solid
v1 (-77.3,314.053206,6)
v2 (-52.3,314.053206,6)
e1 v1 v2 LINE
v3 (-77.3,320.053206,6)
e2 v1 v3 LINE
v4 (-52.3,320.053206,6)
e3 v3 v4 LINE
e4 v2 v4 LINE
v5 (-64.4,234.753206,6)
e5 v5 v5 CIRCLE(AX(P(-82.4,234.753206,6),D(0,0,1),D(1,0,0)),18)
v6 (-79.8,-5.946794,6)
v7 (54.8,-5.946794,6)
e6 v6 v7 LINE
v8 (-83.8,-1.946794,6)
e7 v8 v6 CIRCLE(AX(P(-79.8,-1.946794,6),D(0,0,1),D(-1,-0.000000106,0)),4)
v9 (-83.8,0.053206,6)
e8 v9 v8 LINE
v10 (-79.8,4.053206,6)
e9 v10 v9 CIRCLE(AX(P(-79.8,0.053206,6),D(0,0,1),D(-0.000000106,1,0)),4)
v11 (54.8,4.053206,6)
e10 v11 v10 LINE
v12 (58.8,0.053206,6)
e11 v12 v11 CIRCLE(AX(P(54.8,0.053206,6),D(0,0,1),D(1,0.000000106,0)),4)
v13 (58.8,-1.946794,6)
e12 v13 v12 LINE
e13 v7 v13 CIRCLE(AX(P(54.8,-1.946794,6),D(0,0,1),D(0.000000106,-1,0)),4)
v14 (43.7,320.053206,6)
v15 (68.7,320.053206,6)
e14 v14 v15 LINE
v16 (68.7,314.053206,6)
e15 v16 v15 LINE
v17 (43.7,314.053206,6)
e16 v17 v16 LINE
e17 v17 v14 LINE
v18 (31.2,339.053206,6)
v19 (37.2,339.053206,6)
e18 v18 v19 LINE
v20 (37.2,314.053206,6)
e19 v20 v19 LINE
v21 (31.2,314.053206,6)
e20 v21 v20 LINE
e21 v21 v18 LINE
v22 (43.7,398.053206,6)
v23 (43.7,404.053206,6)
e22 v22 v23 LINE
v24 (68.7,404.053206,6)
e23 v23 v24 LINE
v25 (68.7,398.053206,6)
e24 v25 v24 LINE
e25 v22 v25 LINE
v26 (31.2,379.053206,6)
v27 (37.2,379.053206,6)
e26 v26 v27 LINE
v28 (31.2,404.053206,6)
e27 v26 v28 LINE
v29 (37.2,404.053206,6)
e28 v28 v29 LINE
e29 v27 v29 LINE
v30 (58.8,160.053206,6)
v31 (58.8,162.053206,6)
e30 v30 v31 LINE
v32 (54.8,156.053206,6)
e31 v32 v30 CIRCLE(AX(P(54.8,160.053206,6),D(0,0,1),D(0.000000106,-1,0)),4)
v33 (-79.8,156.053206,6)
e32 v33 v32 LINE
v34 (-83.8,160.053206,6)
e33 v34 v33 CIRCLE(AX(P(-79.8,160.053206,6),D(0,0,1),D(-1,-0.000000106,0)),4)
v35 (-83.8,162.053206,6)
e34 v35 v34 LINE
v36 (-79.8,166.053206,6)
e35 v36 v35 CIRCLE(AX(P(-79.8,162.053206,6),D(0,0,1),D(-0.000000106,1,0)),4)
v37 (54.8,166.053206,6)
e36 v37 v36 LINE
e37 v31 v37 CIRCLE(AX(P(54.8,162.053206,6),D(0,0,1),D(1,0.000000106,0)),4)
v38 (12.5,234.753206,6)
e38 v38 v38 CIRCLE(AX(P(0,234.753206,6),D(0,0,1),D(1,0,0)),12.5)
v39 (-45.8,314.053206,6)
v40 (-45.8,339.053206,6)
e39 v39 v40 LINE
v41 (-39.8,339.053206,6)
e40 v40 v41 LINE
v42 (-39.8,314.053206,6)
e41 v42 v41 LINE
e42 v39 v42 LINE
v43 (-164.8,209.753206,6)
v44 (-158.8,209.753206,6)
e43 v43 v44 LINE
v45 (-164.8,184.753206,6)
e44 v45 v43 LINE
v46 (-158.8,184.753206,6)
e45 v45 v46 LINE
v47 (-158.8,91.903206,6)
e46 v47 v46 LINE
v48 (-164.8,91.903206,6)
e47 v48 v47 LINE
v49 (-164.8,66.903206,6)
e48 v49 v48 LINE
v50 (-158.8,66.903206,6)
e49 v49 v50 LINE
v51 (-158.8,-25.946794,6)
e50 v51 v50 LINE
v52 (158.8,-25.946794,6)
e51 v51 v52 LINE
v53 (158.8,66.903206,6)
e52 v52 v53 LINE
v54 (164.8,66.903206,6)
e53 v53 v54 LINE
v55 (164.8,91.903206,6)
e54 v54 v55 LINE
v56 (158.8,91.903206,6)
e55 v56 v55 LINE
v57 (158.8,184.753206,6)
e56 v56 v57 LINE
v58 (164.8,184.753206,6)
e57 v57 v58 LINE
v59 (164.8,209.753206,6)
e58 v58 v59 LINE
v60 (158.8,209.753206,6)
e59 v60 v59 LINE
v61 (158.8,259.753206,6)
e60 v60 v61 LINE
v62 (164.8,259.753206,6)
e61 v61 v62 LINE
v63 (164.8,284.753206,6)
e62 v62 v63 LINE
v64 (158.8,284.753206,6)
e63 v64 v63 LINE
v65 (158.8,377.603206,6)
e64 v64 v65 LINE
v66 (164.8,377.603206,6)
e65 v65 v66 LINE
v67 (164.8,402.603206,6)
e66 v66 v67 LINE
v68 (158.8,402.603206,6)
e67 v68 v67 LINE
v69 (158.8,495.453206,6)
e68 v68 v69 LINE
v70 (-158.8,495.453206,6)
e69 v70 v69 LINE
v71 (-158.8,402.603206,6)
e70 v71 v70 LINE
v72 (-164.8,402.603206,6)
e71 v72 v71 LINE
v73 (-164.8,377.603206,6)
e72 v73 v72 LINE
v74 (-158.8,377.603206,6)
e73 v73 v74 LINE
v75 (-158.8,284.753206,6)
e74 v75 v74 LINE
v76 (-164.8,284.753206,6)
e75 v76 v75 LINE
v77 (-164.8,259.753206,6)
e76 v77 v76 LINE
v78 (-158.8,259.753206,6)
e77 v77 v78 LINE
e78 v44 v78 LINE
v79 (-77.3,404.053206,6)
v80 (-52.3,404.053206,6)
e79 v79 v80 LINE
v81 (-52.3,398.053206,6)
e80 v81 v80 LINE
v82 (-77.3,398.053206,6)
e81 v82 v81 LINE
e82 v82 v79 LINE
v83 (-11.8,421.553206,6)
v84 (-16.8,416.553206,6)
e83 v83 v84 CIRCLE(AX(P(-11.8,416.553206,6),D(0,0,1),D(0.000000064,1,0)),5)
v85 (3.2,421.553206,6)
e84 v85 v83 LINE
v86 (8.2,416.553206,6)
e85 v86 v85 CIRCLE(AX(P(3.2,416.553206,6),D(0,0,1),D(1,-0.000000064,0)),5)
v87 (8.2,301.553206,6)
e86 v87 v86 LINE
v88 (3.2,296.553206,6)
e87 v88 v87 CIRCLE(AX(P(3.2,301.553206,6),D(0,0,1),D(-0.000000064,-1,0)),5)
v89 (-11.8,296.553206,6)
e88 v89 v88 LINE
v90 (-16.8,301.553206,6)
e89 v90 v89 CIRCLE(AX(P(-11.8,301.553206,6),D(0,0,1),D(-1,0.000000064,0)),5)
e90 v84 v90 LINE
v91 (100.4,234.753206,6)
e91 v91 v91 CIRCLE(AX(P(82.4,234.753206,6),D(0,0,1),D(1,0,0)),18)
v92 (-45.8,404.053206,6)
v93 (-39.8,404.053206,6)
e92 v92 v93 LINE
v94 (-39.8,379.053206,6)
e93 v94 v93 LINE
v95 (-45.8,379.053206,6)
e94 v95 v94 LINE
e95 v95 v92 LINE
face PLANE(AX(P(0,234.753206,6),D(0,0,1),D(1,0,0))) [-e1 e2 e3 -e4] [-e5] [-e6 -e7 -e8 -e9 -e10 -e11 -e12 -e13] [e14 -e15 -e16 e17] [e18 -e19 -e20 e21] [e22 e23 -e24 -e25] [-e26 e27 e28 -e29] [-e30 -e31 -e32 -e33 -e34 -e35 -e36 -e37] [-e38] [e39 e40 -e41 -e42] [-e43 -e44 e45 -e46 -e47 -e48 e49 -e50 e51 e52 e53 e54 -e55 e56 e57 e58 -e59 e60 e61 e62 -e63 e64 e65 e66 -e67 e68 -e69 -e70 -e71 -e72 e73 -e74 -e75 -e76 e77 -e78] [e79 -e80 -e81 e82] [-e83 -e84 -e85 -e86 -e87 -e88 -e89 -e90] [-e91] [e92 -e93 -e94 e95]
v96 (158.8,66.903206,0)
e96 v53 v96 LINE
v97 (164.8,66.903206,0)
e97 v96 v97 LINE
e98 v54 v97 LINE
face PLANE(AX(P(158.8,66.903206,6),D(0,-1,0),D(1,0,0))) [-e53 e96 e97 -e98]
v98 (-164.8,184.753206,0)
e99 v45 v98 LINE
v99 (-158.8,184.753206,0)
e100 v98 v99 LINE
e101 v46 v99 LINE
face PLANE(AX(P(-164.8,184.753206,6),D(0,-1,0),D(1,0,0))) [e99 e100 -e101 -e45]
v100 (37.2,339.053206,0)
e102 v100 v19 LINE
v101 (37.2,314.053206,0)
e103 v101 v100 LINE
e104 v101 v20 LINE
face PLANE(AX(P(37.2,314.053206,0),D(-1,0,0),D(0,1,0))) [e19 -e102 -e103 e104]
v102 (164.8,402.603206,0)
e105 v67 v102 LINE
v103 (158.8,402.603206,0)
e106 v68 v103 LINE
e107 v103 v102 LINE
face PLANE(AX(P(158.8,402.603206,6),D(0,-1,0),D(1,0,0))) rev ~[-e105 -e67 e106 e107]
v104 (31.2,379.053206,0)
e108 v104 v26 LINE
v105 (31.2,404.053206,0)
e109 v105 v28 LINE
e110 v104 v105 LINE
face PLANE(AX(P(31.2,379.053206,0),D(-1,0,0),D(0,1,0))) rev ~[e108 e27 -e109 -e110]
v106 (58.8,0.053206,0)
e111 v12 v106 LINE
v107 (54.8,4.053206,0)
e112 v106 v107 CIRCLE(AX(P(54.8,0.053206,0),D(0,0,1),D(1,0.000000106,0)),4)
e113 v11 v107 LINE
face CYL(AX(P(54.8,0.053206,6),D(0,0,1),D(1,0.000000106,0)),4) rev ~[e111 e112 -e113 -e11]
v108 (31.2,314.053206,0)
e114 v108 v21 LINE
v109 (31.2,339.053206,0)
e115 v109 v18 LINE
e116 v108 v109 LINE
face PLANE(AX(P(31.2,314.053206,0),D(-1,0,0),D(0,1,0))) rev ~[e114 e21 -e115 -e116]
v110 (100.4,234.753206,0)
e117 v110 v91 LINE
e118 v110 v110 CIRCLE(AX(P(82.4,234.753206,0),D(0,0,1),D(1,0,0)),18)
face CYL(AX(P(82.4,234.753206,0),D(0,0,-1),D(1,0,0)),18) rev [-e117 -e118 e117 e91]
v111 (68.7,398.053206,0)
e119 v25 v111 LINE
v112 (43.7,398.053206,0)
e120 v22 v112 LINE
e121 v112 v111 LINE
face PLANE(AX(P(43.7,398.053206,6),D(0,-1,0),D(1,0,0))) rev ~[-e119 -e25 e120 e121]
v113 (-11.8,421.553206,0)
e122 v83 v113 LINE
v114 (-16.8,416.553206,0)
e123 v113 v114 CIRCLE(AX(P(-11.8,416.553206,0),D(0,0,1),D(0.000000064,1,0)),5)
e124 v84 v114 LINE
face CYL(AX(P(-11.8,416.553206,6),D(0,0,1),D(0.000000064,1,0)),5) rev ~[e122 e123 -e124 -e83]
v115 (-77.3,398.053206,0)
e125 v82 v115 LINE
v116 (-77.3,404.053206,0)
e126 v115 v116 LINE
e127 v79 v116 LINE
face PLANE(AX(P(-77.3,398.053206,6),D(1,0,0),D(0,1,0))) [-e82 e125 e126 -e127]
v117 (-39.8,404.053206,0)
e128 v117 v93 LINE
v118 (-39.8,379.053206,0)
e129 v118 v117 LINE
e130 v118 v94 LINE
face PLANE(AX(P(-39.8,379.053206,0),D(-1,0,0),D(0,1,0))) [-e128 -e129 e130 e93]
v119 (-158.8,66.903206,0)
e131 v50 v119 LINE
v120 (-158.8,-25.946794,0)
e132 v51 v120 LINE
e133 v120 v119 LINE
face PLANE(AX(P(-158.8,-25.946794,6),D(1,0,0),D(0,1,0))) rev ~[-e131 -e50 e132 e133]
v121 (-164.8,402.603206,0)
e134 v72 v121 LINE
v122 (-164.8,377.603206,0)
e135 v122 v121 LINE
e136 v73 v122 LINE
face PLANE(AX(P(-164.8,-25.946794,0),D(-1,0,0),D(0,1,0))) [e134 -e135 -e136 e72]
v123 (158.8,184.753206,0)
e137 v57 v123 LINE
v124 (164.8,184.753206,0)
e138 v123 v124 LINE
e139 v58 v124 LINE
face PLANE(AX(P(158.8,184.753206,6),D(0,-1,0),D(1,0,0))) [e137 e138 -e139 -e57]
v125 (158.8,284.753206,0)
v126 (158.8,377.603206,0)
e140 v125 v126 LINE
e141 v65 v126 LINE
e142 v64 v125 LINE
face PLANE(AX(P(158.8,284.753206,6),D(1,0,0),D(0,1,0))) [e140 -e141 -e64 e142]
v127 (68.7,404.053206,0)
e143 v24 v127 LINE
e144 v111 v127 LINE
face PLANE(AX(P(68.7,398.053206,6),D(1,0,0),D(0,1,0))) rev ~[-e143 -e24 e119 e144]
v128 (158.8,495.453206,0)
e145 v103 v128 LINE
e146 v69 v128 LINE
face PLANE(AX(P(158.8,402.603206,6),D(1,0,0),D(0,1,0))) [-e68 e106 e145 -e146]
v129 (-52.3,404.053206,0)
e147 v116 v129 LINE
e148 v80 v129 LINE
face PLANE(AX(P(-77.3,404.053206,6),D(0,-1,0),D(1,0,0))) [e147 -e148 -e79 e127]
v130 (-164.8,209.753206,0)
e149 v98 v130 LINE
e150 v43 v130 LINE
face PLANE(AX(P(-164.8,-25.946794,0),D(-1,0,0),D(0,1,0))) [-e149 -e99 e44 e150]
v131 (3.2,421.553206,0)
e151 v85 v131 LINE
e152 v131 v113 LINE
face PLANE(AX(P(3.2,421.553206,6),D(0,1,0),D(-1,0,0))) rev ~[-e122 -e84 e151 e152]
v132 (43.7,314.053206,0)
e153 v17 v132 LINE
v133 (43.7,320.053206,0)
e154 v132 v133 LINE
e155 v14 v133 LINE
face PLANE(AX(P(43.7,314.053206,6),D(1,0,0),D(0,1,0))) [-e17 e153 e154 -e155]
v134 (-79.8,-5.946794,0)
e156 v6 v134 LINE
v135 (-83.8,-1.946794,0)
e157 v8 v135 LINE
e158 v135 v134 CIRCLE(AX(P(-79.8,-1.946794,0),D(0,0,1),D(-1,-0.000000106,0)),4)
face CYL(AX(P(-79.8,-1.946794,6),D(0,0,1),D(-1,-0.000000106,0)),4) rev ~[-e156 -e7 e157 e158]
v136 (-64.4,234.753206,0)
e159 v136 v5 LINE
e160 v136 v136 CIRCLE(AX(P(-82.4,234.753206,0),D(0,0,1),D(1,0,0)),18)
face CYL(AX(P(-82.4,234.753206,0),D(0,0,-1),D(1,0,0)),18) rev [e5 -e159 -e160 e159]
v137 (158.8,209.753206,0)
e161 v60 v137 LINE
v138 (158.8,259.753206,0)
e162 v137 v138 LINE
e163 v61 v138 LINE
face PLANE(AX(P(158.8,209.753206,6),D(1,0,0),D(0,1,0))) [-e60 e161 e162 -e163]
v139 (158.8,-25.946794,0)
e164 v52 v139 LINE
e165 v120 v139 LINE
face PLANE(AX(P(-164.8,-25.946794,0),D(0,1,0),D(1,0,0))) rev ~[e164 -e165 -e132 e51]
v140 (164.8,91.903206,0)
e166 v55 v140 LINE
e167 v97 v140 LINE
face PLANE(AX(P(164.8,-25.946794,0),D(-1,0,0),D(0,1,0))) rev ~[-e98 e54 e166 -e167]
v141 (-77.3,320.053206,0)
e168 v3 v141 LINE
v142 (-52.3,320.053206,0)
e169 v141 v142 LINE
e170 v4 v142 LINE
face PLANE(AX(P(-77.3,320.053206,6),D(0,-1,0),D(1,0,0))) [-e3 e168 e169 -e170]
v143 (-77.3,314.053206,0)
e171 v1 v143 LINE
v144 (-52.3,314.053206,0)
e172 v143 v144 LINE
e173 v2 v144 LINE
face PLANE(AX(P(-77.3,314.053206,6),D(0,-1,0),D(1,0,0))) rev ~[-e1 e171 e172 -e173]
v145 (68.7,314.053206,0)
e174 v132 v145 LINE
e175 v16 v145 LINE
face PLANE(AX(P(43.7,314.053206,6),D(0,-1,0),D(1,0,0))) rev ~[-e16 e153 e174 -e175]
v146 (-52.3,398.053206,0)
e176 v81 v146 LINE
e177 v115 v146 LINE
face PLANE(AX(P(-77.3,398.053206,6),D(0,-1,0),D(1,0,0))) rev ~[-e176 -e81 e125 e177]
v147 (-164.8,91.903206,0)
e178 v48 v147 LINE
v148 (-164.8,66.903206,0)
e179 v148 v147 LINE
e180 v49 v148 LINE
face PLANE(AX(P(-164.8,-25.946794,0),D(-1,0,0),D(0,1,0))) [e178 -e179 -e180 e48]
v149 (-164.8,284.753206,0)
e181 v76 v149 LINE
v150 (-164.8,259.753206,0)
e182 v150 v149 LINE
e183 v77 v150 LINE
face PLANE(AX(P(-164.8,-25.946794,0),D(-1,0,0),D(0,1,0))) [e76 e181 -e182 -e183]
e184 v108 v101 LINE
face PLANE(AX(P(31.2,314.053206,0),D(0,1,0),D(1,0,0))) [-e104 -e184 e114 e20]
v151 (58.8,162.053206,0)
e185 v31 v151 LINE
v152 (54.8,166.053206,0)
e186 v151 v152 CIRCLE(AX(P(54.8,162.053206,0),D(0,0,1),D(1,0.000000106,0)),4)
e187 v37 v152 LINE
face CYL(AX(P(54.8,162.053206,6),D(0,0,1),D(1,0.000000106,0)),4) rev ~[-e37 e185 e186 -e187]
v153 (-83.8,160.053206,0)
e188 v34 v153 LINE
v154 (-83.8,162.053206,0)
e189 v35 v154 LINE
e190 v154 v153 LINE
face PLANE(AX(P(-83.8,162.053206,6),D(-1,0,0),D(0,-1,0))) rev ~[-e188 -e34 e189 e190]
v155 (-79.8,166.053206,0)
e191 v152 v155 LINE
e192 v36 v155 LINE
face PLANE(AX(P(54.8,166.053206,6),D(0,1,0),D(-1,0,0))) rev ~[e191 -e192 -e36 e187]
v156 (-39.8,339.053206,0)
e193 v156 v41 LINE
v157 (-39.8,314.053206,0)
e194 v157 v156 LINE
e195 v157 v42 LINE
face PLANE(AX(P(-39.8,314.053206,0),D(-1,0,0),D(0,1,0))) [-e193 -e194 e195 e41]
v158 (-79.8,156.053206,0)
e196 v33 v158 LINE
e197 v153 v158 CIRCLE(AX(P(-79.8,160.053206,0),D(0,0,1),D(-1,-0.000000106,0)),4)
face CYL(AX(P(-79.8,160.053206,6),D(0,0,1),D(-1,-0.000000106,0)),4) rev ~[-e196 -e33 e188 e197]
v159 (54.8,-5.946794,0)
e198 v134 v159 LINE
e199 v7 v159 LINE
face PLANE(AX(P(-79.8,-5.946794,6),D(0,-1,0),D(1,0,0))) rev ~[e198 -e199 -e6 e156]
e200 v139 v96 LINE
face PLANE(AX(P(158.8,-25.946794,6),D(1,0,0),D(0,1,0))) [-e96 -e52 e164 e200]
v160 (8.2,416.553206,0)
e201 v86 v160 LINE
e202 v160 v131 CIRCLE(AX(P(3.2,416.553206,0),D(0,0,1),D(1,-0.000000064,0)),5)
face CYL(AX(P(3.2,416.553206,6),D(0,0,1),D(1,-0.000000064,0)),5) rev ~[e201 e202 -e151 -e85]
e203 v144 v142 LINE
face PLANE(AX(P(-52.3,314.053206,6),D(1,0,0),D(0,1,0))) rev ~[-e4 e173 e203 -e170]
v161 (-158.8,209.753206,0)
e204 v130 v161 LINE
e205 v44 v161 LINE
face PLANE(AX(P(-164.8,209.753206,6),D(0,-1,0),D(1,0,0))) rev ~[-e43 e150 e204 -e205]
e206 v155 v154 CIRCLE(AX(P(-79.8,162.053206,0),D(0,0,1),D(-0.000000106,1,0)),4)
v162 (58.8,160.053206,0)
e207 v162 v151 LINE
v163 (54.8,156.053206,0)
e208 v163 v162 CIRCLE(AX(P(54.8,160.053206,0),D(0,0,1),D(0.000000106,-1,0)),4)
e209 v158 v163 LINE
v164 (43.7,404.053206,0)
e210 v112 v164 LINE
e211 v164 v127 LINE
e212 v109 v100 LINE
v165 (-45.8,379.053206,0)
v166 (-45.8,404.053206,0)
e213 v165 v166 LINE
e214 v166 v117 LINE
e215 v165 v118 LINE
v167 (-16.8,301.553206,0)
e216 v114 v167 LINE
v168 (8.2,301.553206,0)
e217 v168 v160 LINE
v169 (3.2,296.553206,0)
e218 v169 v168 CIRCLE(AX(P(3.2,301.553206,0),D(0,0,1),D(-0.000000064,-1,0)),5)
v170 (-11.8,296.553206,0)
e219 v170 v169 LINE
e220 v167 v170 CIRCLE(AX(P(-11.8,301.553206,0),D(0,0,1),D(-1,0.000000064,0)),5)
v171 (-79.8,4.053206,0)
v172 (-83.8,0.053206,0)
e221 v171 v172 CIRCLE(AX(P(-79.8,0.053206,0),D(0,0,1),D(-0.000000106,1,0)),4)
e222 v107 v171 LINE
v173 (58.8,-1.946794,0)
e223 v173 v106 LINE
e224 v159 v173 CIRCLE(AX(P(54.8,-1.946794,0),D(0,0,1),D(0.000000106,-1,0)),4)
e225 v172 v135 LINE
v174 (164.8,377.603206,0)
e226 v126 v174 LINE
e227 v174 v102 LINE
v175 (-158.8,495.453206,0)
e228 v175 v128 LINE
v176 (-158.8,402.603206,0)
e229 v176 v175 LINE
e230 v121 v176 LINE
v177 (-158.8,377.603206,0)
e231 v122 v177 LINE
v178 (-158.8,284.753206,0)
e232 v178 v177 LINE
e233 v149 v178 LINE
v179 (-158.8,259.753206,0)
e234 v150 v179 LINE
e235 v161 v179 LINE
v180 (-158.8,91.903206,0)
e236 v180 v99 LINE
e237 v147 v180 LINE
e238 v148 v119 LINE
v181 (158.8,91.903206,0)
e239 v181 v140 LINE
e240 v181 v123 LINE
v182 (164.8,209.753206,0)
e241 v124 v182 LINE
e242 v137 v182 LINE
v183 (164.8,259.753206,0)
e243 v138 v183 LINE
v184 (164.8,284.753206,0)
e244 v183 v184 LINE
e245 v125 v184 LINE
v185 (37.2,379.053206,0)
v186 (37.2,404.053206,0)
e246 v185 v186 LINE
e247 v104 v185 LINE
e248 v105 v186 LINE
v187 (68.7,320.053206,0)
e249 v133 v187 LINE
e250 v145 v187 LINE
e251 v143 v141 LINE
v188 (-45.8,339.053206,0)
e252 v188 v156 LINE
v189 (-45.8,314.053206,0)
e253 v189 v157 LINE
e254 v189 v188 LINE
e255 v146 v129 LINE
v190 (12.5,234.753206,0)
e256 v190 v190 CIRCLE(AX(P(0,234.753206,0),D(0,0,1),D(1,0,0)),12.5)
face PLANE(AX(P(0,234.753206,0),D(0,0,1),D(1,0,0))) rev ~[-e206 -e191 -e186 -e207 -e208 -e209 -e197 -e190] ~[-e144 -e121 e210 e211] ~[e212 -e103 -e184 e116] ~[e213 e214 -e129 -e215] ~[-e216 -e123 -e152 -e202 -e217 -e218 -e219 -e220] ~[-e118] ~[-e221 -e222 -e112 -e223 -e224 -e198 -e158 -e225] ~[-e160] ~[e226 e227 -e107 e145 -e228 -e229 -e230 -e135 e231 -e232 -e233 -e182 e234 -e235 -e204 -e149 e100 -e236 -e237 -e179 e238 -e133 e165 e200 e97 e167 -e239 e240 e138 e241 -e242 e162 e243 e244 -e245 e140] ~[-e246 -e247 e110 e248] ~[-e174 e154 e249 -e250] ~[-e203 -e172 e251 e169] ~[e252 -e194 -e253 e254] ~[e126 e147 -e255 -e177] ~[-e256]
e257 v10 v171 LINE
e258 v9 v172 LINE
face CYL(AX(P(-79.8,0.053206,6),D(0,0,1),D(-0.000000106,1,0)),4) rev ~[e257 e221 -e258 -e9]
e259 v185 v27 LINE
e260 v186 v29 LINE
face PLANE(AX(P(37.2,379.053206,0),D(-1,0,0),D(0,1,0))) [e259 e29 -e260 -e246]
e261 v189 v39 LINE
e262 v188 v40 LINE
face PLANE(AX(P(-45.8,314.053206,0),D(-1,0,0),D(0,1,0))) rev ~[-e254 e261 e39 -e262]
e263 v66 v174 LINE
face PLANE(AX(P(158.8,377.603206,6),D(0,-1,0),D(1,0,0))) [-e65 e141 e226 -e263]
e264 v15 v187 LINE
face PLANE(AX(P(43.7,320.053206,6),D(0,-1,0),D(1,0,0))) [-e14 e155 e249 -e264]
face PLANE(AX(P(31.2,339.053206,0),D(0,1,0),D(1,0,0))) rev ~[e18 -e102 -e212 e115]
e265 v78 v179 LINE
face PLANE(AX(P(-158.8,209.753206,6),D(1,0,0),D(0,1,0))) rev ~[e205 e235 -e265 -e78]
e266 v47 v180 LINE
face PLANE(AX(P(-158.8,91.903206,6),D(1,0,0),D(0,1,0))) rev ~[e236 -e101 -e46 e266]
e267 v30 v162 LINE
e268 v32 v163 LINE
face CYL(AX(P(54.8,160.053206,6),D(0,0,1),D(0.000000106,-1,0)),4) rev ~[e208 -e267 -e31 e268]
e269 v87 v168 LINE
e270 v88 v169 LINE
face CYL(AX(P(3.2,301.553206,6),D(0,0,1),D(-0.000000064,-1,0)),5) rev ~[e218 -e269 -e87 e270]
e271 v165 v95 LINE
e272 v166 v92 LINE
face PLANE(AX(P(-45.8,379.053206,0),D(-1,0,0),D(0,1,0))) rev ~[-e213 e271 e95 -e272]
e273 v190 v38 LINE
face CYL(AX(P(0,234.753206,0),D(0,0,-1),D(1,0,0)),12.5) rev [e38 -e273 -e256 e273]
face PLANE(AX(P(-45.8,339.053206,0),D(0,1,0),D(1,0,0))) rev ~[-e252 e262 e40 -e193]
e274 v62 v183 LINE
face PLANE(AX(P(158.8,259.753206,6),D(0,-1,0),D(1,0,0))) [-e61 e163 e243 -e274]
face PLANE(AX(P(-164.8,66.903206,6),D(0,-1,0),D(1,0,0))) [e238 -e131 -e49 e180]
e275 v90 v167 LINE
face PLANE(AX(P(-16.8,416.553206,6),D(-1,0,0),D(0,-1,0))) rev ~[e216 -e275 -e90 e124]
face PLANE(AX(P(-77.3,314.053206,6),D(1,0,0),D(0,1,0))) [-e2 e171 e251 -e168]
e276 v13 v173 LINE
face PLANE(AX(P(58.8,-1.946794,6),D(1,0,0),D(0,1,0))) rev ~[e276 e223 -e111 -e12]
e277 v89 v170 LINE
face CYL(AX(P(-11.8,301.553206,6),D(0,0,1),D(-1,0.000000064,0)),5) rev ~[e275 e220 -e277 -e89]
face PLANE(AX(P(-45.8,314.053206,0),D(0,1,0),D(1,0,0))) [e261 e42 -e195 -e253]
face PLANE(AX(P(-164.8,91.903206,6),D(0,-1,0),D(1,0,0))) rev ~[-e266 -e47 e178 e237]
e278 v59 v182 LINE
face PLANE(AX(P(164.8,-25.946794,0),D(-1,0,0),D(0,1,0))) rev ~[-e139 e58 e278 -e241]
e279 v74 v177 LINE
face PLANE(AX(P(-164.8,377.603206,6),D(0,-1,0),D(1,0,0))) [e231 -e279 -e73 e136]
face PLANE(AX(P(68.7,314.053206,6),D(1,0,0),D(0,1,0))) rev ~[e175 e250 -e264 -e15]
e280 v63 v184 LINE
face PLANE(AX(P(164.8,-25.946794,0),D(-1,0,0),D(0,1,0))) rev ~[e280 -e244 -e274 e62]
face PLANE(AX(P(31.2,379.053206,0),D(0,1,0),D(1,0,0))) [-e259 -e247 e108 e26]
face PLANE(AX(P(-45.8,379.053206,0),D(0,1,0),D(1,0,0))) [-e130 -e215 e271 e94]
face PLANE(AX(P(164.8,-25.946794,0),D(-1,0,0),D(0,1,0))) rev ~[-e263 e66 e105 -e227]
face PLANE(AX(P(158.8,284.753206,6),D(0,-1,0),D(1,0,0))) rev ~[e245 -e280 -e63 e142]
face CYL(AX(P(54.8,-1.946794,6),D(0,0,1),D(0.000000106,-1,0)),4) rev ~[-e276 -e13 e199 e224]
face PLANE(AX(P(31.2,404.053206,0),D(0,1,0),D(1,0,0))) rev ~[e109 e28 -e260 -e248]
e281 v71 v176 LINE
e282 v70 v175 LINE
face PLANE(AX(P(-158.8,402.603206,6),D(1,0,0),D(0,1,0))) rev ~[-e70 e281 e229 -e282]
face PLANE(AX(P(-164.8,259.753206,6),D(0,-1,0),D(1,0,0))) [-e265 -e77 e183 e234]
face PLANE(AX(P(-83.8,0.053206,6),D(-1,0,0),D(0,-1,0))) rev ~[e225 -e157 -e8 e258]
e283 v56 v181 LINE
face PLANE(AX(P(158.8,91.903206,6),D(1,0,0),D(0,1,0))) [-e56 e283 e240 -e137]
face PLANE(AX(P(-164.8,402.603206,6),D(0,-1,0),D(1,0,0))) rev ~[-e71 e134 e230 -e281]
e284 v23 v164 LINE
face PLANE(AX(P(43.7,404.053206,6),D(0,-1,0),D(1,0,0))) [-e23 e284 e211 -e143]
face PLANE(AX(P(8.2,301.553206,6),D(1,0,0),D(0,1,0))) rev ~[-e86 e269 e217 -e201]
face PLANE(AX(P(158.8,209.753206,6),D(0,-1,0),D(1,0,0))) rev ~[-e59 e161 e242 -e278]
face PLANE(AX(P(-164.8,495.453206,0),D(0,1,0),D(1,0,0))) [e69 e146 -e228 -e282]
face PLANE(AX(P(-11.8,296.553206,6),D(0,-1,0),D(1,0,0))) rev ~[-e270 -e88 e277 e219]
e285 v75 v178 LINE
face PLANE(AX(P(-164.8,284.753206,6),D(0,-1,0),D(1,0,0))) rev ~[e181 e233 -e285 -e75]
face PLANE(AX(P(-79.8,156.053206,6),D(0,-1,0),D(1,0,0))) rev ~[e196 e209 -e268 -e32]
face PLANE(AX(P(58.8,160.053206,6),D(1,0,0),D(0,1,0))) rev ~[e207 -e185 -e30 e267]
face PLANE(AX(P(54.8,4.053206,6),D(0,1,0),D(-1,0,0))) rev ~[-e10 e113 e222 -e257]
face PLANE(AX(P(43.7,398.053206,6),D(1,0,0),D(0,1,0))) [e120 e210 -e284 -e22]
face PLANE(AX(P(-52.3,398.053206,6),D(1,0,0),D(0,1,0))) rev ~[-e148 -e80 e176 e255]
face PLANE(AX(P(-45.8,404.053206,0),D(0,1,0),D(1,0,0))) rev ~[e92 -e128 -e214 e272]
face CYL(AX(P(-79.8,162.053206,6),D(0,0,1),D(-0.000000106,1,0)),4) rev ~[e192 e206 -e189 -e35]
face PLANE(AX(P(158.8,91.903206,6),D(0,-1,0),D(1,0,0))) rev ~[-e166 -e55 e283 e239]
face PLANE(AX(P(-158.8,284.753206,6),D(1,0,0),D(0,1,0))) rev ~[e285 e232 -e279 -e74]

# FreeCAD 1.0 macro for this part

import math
import FreeCAD as App
import Part
import Sketcher

doc = App.newDocument("Part")
body = doc.addObject("PartDesign::Body", "Body")

sketch1 = doc.addObject("Sketcher::SketchObject", "Sketch")
body.addObject(sketch1)
sketch1.AttachmentSupport = (doc.XY_Plane, [""])
sketch1.MapMode = "FlatFace"
sketch1.addGeometry([
    Part.LineSegment(App.Vector(-165, 495, 0), App.Vector(-165, -26, 0)),
    Part.LineSegment(App.Vector(-165, -26, 0), App.Vector(165, -26, 0)),
    Part.LineSegment(App.Vector(165, -26, 0), App.Vector(165, 495, 0)),
    Part.LineSegment(App.Vector(165, 495, 0), App.Vector(-165, 495, 0)),
    Part.Circle(App.Vector(-82, 235, 0), App.Vector(0, 0, 1), 18),
    Part.Circle(App.Vector(0, 235, 0), App.Vector(0, 0, 1), 12),
    Part.Circle(App.Vector(82, 235, 0), App.Vector(0, 0, 1), 18),
    Part.LineSegment(App.Vector(-40, 314, 0), App.Vector(-46, 314, 0)),
    Part.LineSegment(App.Vector(-46, 314, 0), App.Vector(-46, 339, 0)),
    Part.LineSegment(App.Vector(-46, 339, 0), App.Vector(-40, 339, 0)),
    Part.LineSegment(App.Vector(-40, 339, 0), App.Vector(-40, 314, 0)),
    Part.LineSegment(App.Vector(-40, 379, 0), App.Vector(-46, 379, 0)),
    Part.LineSegment(App.Vector(-46, 379, 0), App.Vector(-46, 404, 0)),
    Part.LineSegment(App.Vector(-46, 404, 0), App.Vector(-40, 404, 0)),
    Part.LineSegment(App.Vector(-40, 404, 0), App.Vector(-40, 379, 0)),
    Part.LineSegment(App.Vector(37, 314, 0), App.Vector(31, 314, 0)),
    Part.LineSegment(App.Vector(31, 314, 0), App.Vector(31, 339, 0)),
    Part.LineSegment(App.Vector(31, 339, 0), App.Vector(37, 339, 0)),
    Part.LineSegment(App.Vector(37, 339, 0), App.Vector(37, 314, 0)),
    Part.LineSegment(App.Vector(37, 379, 0), App.Vector(31, 379, 0)),
    Part.LineSegment(App.Vector(31, 379, 0), App.Vector(31, 404, 0)),
    Part.LineSegment(App.Vector(31, 404, 0), App.Vector(37, 404, 0)),
    Part.LineSegment(App.Vector(37, 404, 0), App.Vector(37, 379, 0)),
], False)
sketch1.addConstraint([
    Sketcher.Constraint("Coincident", 0, 2, 1, 1),
    Sketcher.Constraint("Coincident", 1, 2, 2, 1),
    Sketcher.Constraint("Coincident", 2, 2, 3, 1),
    Sketcher.Constraint("Coincident", 3, 2, 0, 1),
    Sketcher.Constraint("Coincident", 7, 2, 8, 1),
    Sketcher.Constraint("Coincident", 8, 2, 9, 1),
    Sketcher.Constraint("Coincident", 9, 2, 10, 1),
    Sketcher.Constraint("Coincident", 10, 2, 7, 1),
    Sketcher.Constraint("Coincident", 11, 2, 12, 1),
    Sketcher.Constraint("Coincident", 12, 2, 13, 1),
    Sketcher.Constraint("Coincident", 13, 2, 14, 1),
    Sketcher.Constraint("Coincident", 14, 2, 11, 1),
    Sketcher.Constraint("Coincident", 15, 2, 16, 1),
    Sketcher.Constraint("Coincident", 16, 2, 17, 1),
    Sketcher.Constraint("Coincident", 17, 2, 18, 1),
    Sketcher.Constraint("Coincident", 18, 2, 15, 1),
    Sketcher.Constraint("Coincident", 19, 2, 20, 1),
    Sketcher.Constraint("Coincident", 20, 2, 21, 1),
    Sketcher.Constraint("Coincident", 21, 2, 22, 1),
    Sketcher.Constraint("Coincident", 22, 2, 19, 1),
    Sketcher.Constraint("Vertical", 0),
    Sketcher.Constraint("Horizontal", 1),
    Sketcher.Constraint("Vertical", 2),
    Sketcher.Constraint("Horizontal", 3),
    Sketcher.Constraint("Horizontal", 7),
    Sketcher.Constraint("Vertical", 8),
    Sketcher.Constraint("Horizontal", 9),
    Sketcher.Constraint("Vertical", 10),
    Sketcher.Constraint("Horizontal", 11),
    Sketcher.Constraint("Vertical", 12),
    Sketcher.Constraint("Horizontal", 13),
    Sketcher.Constraint("Vertical", 14),
    Sketcher.Constraint("Horizontal", 15),
    Sketcher.Constraint("Vertical", 16),
    Sketcher.Constraint("Horizontal", 17),
    Sketcher.Constraint("Vertical", 18),
    Sketcher.Constraint("Horizontal", 19),
    Sketcher.Constraint("Vertical", 20),
    Sketcher.Constraint("Horizontal", 21),
    Sketcher.Constraint("Vertical", 22),
    Sketcher.Constraint("Equal", 4, 6),
    Sketcher.Constraint("Symmetric", 4, 3, 6, 3, -2),
    Sketcher.Constraint("PointOnObject", 5, 3, -2),
    Sketcher.Constraint("Horizontal", 4, 3, 5, 3),
    Sketcher.Constraint("Horizontal", 10, 2, 15, 2),
    Sketcher.Constraint("Horizontal", 9, 2, 16, 2),
    Sketcher.Constraint("Horizontal", 14, 2, 19, 2),
    Sketcher.Constraint("Horizontal", 13, 2, 20, 2),
    Sketcher.Constraint("Vertical", 8, 2, 11, 2),
    Sketcher.Constraint("Vertical", 10, 2, 13, 2),
    Sketcher.Constraint("Vertical", 16, 2, 19, 2),
    Sketcher.Constraint("Vertical", 18, 2, 21, 2),
    Sketcher.Constraint("Equal", 13, 15),
    Sketcher.Constraint("Equal", 10, 12),
    Sketcher.Constraint("Diameter", 4, 36.0),
    Sketcher.Constraint("Diameter", 5, 25.0),
    Sketcher.Constraint("DistanceX", 7, 2, 7, 1, 6.0),
    Sketcher.Constraint("DistanceY", 8, 1, 8, 2, 25.0),
    Sketcher.Constraint("DistanceX", 1, 1, 1, 2, 329.6),
    Sketcher.Constraint("DistanceY", 0, 2, 0, 1, 521.4),
    Sketcher.Constraint("DistanceX", 3, 2, 7, 2, 119.0),
    Sketcher.Constraint("DistanceY", 8, 2, 11, 2, 40.0),
    Sketcher.Constraint("DistanceX", 10, 2, 15, 2, 71.0),
    Sketcher.Constraint("DistanceX", 4, 3, -1, 1, 82.4),
    Sketcher.Constraint("DistanceX", 0, 2, -1, 1, 164.8),
    Sketcher.Constraint("DistanceY", 0, 2, 4, 3, 260.7),
    Sketcher.Constraint("DistanceY", 4, 3, 7, 2, 79.3),
    Sketcher.Constraint("DistanceY", -1, 1, 4, 3, 234.753206),
])
pad1 = doc.addObject("PartDesign::Pad", "Pad")
body.addObject(pad1)
pad1.Profile = sketch1
pad1.Length = 6

sketch2 = doc.addObject("Sketcher::SketchObject", "Sketch001")
body.addObject(sketch2)
sketch2.AttachmentSupport = (doc.XY_Plane, [""])
sketch2.MapMode = "FlatFace"
sketch2.AttachmentOffset = App.Placement(App.Vector(0, 0, 6), App.Rotation())
sketch2.addGeometry([
    Part.LineSegment(App.Vector(-165, 495, 0), App.Vector(-165, 403, 0)),
    Part.LineSegment(App.Vector(-165, 403, 0), App.Vector(-159, 403, 0)),
    Part.LineSegment(App.Vector(-159, 403, 0), App.Vector(-159, 495, 0)),
    Part.LineSegment(App.Vector(-159, 495, 0), App.Vector(-165, 495, 0)),
    Part.LineSegment(App.Vector(-165, 378, 0), App.Vector(-165, 285, 0)),
    Part.LineSegment(App.Vector(-165, 285, 0), App.Vector(-159, 285, 0)),
    Part.LineSegment(App.Vector(-159, 285, 0), App.Vector(-159, 378, 0)),
    Part.LineSegment(App.Vector(-159, 378, 0), App.Vector(-165, 378, 0)),
    Part.LineSegment(App.Vector(-165, 260, 0), App.Vector(-165, 210, 0)),
    Part.LineSegment(App.Vector(-165, 210, 0), App.Vector(-159, 210, 0)),
    Part.LineSegment(App.Vector(-159, 210, 0), App.Vector(-159, 260, 0)),
    Part.LineSegment(App.Vector(-159, 260, 0), App.Vector(-165, 260, 0)),
    Part.LineSegment(App.Vector(-165, 185, 0), App.Vector(-165, 92, 0)),
    Part.LineSegment(App.Vector(-165, 92, 0), App.Vector(-159, 92, 0)),
    Part.LineSegment(App.Vector(-159, 92, 0), App.Vector(-159, 185, 0)),
    Part.LineSegment(App.Vector(-159, 185, 0), App.Vector(-165, 185, 0)),
    Part.LineSegment(App.Vector(-165, 67, 0), App.Vector(-165, -26, 0)),
    Part.LineSegment(App.Vector(-165, -26, 0), App.Vector(-159, -26, 0)),
    Part.LineSegment(App.Vector(-159, -26, 0), App.Vector(-159, 67, 0)),
    Part.LineSegment(App.Vector(-159, 67, 0), App.Vector(-165, 67, 0)),
    Part.LineSegment(App.Vector(159, 495, 0), App.Vector(159, 403, 0)),
    Part.LineSegment(App.Vector(159, 403, 0), App.Vector(165, 403, 0)),
    Part.LineSegment(App.Vector(165, 403, 0), App.Vector(165, 495, 0)),
    Part.LineSegment(App.Vector(165, 495, 0), App.Vector(159, 495, 0)),
    Part.LineSegment(App.Vector(159, 67, 0), App.Vector(159, -26, 0)),
    Part.LineSegment(App.Vector(159, -26, 0), App.Vector(165, -26, 0)),
    Part.LineSegment(App.Vector(165, -26, 0), App.Vector(165, 67, 0)),
    Part.LineSegment(App.Vector(165, 67, 0), App.Vector(159, 67, 0)),
    Part.LineSegment(App.Vector(159, 185, 0), App.Vector(159, 92, 0)),
    Part.LineSegment(App.Vector(159, 92, 0), App.Vector(165, 92, 0)),
    Part.LineSegment(App.Vector(165, 92, 0), App.Vector(165, 185, 0)),
    Part.LineSegment(App.Vector(165, 185, 0), App.Vector(159, 185, 0)),
    Part.LineSegment(App.Vector(159, 378, 0), App.Vector(159, 285, 0)),
    Part.LineSegment(App.Vector(159, 285, 0), App.Vector(165, 285, 0)),
    Part.LineSegment(App.Vector(165, 285, 0), App.Vector(165, 378, 0)),
    Part.LineSegment(App.Vector(165, 378, 0), App.Vector(159, 378, 0)),
    Part.LineSegment(App.Vector(159, 260, 0), App.Vector(159, 210, 0)),
    Part.LineSegment(App.Vector(159, 210, 0), App.Vector(165, 210, 0)),
    Part.LineSegment(App.Vector(165, 210, 0), App.Vector(165, 260, 0)),
    Part.LineSegment(App.Vector(165, 260, 0), App.Vector(159, 260, 0)),
], False)
sketch2.addConstraint([
    Sketcher.Constraint("Coincident", 0, 2, 1, 1),
    Sketcher.Constraint("Coincident", 1, 2, 2, 1),
    Sketcher.Constraint("Coincident", 2, 2, 3, 1),
    Sketcher.Constraint("Coincident", 3, 2, 0, 1),
    Sketcher.Constraint("Coincident", 4, 2, 5, 1),
    Sketcher.Constraint("Coincident", 5, 2, 6, 1),
    Sketcher.Constraint("Coincident", 6, 2, 7, 1),
    Sketcher.Constraint("Coincident", 7, 2, 4, 1),
    Sketcher.Constraint("Coincident", 8, 2, 9, 1),
    Sketcher.Constraint("Coincident", 9, 2, 10, 1),
    Sketcher.Constraint("Coincident", 10, 2, 11, 1),
    Sketcher.Constraint("Coincident", 11, 2, 8, 1),
    Sketcher.Constraint("Coincident", 12, 2, 13, 1),
    Sketcher.Constraint("Coincident", 13, 2, 14, 1),
    Sketcher.Constraint("Coincident", 14, 2, 15, 1),
    Sketcher.Constraint("Coincident", 15, 2, 12, 1),
    Sketcher.Constraint("Coincident", 16, 2, 17, 1),
    Sketcher.Constraint("Coincident", 17, 2, 18, 1),
    Sketcher.Constraint("Coincident", 18, 2, 19, 1),
    Sketcher.Constraint("Coincident", 19, 2, 16, 1),
    Sketcher.Constraint("Coincident", 20, 2, 21, 1),
    Sketcher.Constraint("Coincident", 21, 2, 22, 1),
    Sketcher.Constraint("Coincident", 22, 2, 23, 1),
    Sketcher.Constraint("Coincident", 23, 2, 20, 1),
    Sketcher.Constraint("Coincident", 24, 2, 25, 1),
    Sketcher.Constraint("Coincident", 25, 2, 26, 1),
    Sketcher.Constraint("Coincident", 26, 2, 27, 1),
    Sketcher.Constraint("Coincident", 27, 2, 24, 1),
    Sketcher.Constraint("Coincident", 28, 2, 29, 1),
    Sketcher.Constraint("Coincident", 29, 2, 30, 1),
    Sketcher.Constraint("Coincident", 30, 2, 31, 1),
    Sketcher.Constraint("Coincident", 31, 2, 28, 1),
    Sketcher.Constraint("Coincident", 32, 2, 33, 1),
    Sketcher.Constraint("Coincident", 33, 2, 34, 1),
    Sketcher.Constraint("Coincident", 34, 2, 35, 1),
    Sketcher.Constraint("Coincident", 35, 2, 32, 1),
    Sketcher.Constraint("Coincident", 36, 2, 37, 1),
    Sketcher.Constraint("Coincident", 37, 2, 38, 1),
    Sketcher.Constraint("Coincident", 38, 2, 39, 1),
    Sketcher.Constraint("Coincident", 39, 2, 36, 1),
    Sketcher.Constraint("Vertical", 0),
    Sketcher.Constraint("Horizontal", 1),
    Sketcher.Constraint("Vertical", 2),
    Sketcher.Constraint("Horizontal", 3),
    Sketcher.Constraint("Vertical", 4),
    Sketcher.Constraint("Horizontal", 5),
    Sketcher.Constraint("Vertical", 6),
    Sketcher.Constraint("Horizontal", 7),
    Sketcher.Constraint("Vertical", 8),
    Sketcher.Constraint("Horizontal", 9),
    Sketcher.Constraint("Vertical", 10),
    Sketcher.Constraint("Horizontal", 11),
    Sketcher.Constraint("Vertical", 12),
    Sketcher.Constraint("Horizontal", 13),
    Sketcher.Constraint("Vertical", 14),
    Sketcher.Constraint("Horizontal", 15),
    Sketcher.Constraint("Vertical", 16),
    Sketcher.Constraint("Horizontal", 17),
    Sketcher.Constraint("Vertical", 18),
    Sketcher.Constraint("Horizontal", 19),
    Sketcher.Constraint("Vertical", 20),
    Sketcher.Constraint("Horizontal", 21),
    Sketcher.Constraint("Vertical", 22),
    Sketcher.Constraint("Horizontal", 23),
    Sketcher.Constraint("Vertical", 24),
    Sketcher.Constraint("Horizontal", 25),
    Sketcher.Constraint("Vertical", 26),
    Sketcher.Constraint("Horizontal", 27),
    Sketcher.Constraint("Vertical", 28),
    Sketcher.Constraint("Horizontal", 29),
    Sketcher.Constraint("Vertical", 30),
    Sketcher.Constraint("Horizontal", 31),
    Sketcher.Constraint("Vertical", 32),
    Sketcher.Constraint("Horizontal", 33),
    Sketcher.Constraint("Vertical", 34),
    Sketcher.Constraint("Horizontal", 35),
    Sketcher.Constraint("Vertical", 36),
    Sketcher.Constraint("Horizontal", 37),
    Sketcher.Constraint("Vertical", 38),
    Sketcher.Constraint("Horizontal", 39),
    Sketcher.Constraint("Symmetric", 1, 2, 20, 2, -2),
    Sketcher.Constraint("Symmetric", 3, 2, 22, 2, -2),
    Sketcher.Constraint("Symmetric", 17, 2, 24, 2, -2),
    Sketcher.Constraint("Symmetric", 19, 2, 26, 2, -2),
    Sketcher.Constraint("Symmetric", 13, 2, 28, 2, -2),
    Sketcher.Constraint("Symmetric", 15, 2, 30, 2, -2),
    Sketcher.Constraint("Symmetric", 5, 2, 32, 2, -2),
    Sketcher.Constraint("Symmetric", 7, 2, 34, 2, -2),
    Sketcher.Constraint("Symmetric", 9, 2, 36, 2, -2),
    Sketcher.Constraint("Symmetric", 11, 2, 38, 2, -2),
    Sketcher.Constraint("Vertical", 3, 2, 4, 2),
    Sketcher.Constraint("Vertical", 2, 2, 5, 2),
    Sketcher.Constraint("Vertical", 7, 2, 8, 2),
    Sketcher.Constraint("Vertical", 6, 2, 9, 2),
    Sketcher.Constraint("Vertical", 11, 2, 12, 2),
    Sketcher.Constraint("Vertical", 10, 2, 13, 2),
    Sketcher.Constraint("Vertical", 15, 2, 16, 2),
    Sketcher.Constraint("Vertical", 14, 2, 17, 2),
    Sketcher.Constraint("Equal", 2, 4),
    Sketcher.Constraint("Equal", 6, 12),
    Sketcher.Constraint("Equal", 14, 16),
    Sketcher.Constraint("DistanceX", 1, 1, 1, 2, 6.0),
    Sketcher.Constraint("DistanceY", 8, 2, 8, 1, 50.0),
    Sketcher.Constraint("DistanceY", 6, 2, 1, 2, 25.0),
    Sketcher.Constraint("DistanceY", 8, 2, 4, 2, 75.0),
    Sketcher.Constraint("DistanceY", 14, 2, 9, 2, 25.0),
    Sketcher.Constraint("DistanceY", 18, 2, 13, 2, 25.0),
    Sketcher.Constraint("DistanceY", 0, 2, 0, 1, 92.85),
    Sketcher.Constraint("DistanceX", 0, 2, -1, 1, 164.8),
    Sketcher.Constraint("DistanceY", -1, 1, 0, 2, 402.603206),
])
pocket1 = doc.addObject("PartDesign::Pocket", "Pocket")
body.addObject(pocket1)
pocket1.Profile = sketch2
pocket1.Length = 25

sketch3 = doc.addObject("Sketcher::SketchObject", "Sketch002")
body.addObject(sketch3)
sketch3.AttachmentSupport = (doc.XY_Plane, [""])
sketch3.MapMode = "FlatFace"
sketch3.AttachmentOffset = App.Placement(App.Vector(0, 0, 6), App.Rotation())
sketch3.addGeometry([
    Part.LineSegment(App.Vector(-77.3, 320.1, 0), App.Vector(-77.3, 314.1, 0)),
    Part.LineSegment(App.Vector(-77.3, 314.1, 0), App.Vector(-52.3, 314.1, 0)),
    Part.LineSegment(App.Vector(-52.3, 314.1, 0), App.Vector(-52.3, 320.1, 0)),
    Part.LineSegment(App.Vector(-52.3, 320.1, 0), App.Vector(-77.3, 320.1, 0)),
    Part.LineSegment(App.Vector(-77.3, 404.1, 0), App.Vector(-77.3, 398.1, 0)),
    Part.LineSegment(App.Vector(-77.3, 398.1, 0), App.Vector(-52.3, 398.1, 0)),
    Part.LineSegment(App.Vector(-52.3, 398.1, 0), App.Vector(-52.3, 404.1, 0)),
    Part.LineSegment(App.Vector(-52.3, 404.1, 0), App.Vector(-77.3, 404.1, 0)),
    Part.LineSegment(App.Vector(43.7, 404.1, 0), App.Vector(43.7, 398.1, 0)),
    Part.LineSegment(App.Vector(43.7, 398.1, 0), App.Vector(68.7, 398.1, 0)),
    Part.LineSegment(App.Vector(68.7, 398.1, 0), App.Vector(68.7, 404.1, 0)),
    Part.LineSegment(App.Vector(68.7, 404.1, 0), App.Vector(43.7, 404.1, 0)),
    Part.LineSegment(App.Vector(43.7, 320.1, 0), App.Vector(43.7, 314.1, 0)),
    Part.LineSegment(App.Vector(43.7, 314.1, 0), App.Vector(68.7, 314.1, 0)),
    Part.LineSegment(App.Vector(68.7, 314.1, 0), App.Vector(68.7, 320.1, 0)),
    Part.LineSegment(App.Vector(68.7, 320.1, 0), App.Vector(43.7, 320.1, 0)),
    Part.LineSegment(App.Vector(3.2, 421.6, 0), App.Vector(-11.8, 421.6, 0)),
    Part.ArcOfCircle(Part.Circle(App.Vector(-11.8, 416.6, 0), App.Vector(0, 0, 1), 5), math.radians(90), math.radians(180)),
    Part.LineSegment(App.Vector(-16.8, 416.6, 0), App.Vector(-16.8, 301.6, 0)),
    Part.ArcOfCircle(Part.Circle(App.Vector(-11.8, 301.6, 0), App.Vector(0, 0, 1), 5), math.radians(180), math.radians(270)),
    Part.LineSegment(App.Vector(-11.8, 296.6, 0), App.Vector(3.2, 296.6, 0)),
    Part.ArcOfCircle(Part.Circle(App.Vector(3.2, 301.6, 0), App.Vector(0, 0, 1), 5), math.radians(-90), math.radians(0)),
    Part.LineSegment(App.Vector(8.2, 301.6, 0), App.Vector(8.2, 416.6, 0)),
    Part.ArcOfCircle(Part.Circle(App.Vector(3.2, 416.6, 0), App.Vector(0, 0, 1), 5), math.radians(0), math.radians(90)),
], False)
sketch3.addConstraint([
    Sketcher.Constraint("Coincident", 0, 2, 1, 1),
    Sketcher.Constraint("Coincident", 1, 2, 2, 1),
    Sketcher.Constraint("Coincident", 2, 2, 3, 1),
    Sketcher.Constraint("Coincident", 3, 2, 0, 1),
    Sketcher.Constraint("Coincident", 4, 2, 5, 1),
    Sketcher.Constraint("Coincident", 5, 2, 6, 1),
    Sketcher.Constraint("Coincident", 6, 2, 7, 1),
    Sketcher.Constraint("Coincident", 7, 2, 4, 1),
    Sketcher.Constraint("Coincident", 8, 2, 9, 1),
    Sketcher.Constraint("Coincident", 9, 2, 10, 1),
    Sketcher.Constraint("Coincident", 10, 2, 11, 1),
    Sketcher.Constraint("Coincident", 11, 2, 8, 1),
    Sketcher.Constraint("Coincident", 12, 2, 13, 1),
    Sketcher.Constraint("Coincident", 13, 2, 14, 1),
    Sketcher.Constraint("Coincident", 14, 2, 15, 1),
    Sketcher.Constraint("Coincident", 15, 2, 12, 1),
    Sketcher.Constraint("Tangent", 16, 2, 17, 1),
    Sketcher.Constraint("Tangent", 17, 2, 18, 1),
    Sketcher.Constraint("Tangent", 18, 2, 19, 1),
    Sketcher.Constraint("Tangent", 19, 2, 20, 1),
    Sketcher.Constraint("Tangent", 20, 2, 21, 1),
    Sketcher.Constraint("Tangent", 21, 2, 22, 1),
    Sketcher.Constraint("Tangent", 22, 2, 23, 1),
    Sketcher.Constraint("Tangent", 23, 2, 16, 1),
    Sketcher.Constraint("Vertical", 0),
    Sketcher.Constraint("Horizontal", 1),
    Sketcher.Constraint("Vertical", 2),
    Sketcher.Constraint("Horizontal", 3),
    Sketcher.Constraint("Vertical", 4),
    Sketcher.Constraint("Horizontal", 5),
    Sketcher.Constraint("Vertical", 6),
    Sketcher.Constraint("Horizontal", 7),
    Sketcher.Constraint("Vertical", 8),
    Sketcher.Constraint("Horizontal", 9),
    Sketcher.Constraint("Vertical", 10),
    Sketcher.Constraint("Horizontal", 11),
    Sketcher.Constraint("Vertical", 12),
    Sketcher.Constraint("Horizontal", 13),
    Sketcher.Constraint("Vertical", 14),
    Sketcher.Constraint("Horizontal", 15),
    Sketcher.Constraint("Horizontal", 16),
    Sketcher.Constraint("Vertical", 18),
    Sketcher.Constraint("Horizontal", 20),
    Sketcher.Constraint("Vertical", 22),
    Sketcher.Constraint("Equal", 17, 19),
    Sketcher.Constraint("Equal", 19, 21),
    Sketcher.Constraint("Equal", 21, 23),
    Sketcher.Constraint("Horizontal", 5, 2, 8, 2),
    Sketcher.Constraint("Horizontal", 7, 2, 10, 2),
    Sketcher.Constraint("Horizontal", 1, 2, 12, 2),
    Sketcher.Constraint("Horizontal", 3, 2, 14, 2),
    Sketcher.Constraint("Vertical", 3, 2, 4, 2),
    Sketcher.Constraint("Vertical", 2, 2, 5, 2),
    Sketcher.Constraint("Vertical", 11, 2, 12, 2),
    Sketcher.Constraint("Vertical", 10, 2, 13, 2),
    Sketcher.Constraint("Equal", 7, 9),
    Sketcher.Constraint("Equal", 2, 4),
    Sketcher.Constraint("Radius", 17, 5.0),
    Sketcher.Constraint("DistanceX", 1, 1, 1, 2, 25.0),
    Sketcher.Constraint("DistanceX", 16, 2, 16, 1, 15.0),
    Sketcher.Constraint("DistanceY", 0, 2, 0, 1, 6.0),
    Sketcher.Constraint("DistanceY", 18, 2, 18, 1, 115.0),
    Sketcher.Constraint("DistanceY", 3, 2, 4, 2, 78.0),
    Sketcher.Constraint("DistanceX", 5, 2, 8, 2, 96.0),
    Sketcher.Constraint("DistanceX", 17, 3, -1, 1, 11.8),
    Sketcher.Constraint("DistanceX", 0, 2, -1, 1, 77.3),
    Sketcher.Constraint("DistanceY", 19, 3, 0, 2, 12.5),
    Sketcher.Constraint("DistanceY", -1, 1, 17, 3, 416.553206),
])
pocket2 = doc.addObject("PartDesign::Pocket", "Pocket001")
body.addObject(pocket2)
pocket2.Profile = sketch3
pocket2.Length = 25

sketch4 = doc.addObject("Sketcher::SketchObject", "Sketch003")
body.addObject(sketch4)
sketch4.AttachmentSupport = (doc.XY_Plane, [""])
sketch4.MapMode = "FlatFace"
sketch4.AttachmentOffset = App.Placement(App.Vector(0, 0, 6), App.Rotation())
sketch4.addGeometry([
    Part.LineSegment(App.Vector(54.8, 166.1, 0), App.Vector(-79.8, 166.1, 0)),
    Part.ArcOfCircle(Part.Circle(App.Vector(-79.8, 162.1, 0), App.Vector(0, 0, 1), 4), math.radians(90), math.radians(180)),
    Part.LineSegment(App.Vector(-83.8, 162.1, 0), App.Vector(-83.8, 160.1, 0)),
    Part.ArcOfCircle(Part.Circle(App.Vector(-79.8, 160.1, 0), App.Vector(0, 0, 1), 4), math.radians(-180), math.radians(-90)),
    Part.LineSegment(App.Vector(-79.8, 156.1, 0), App.Vector(54.8, 156.1, 0)),
    Part.ArcOfCircle(Part.Circle(App.Vector(54.8, 160.1, 0), App.Vector(0, 0, 1), 4), math.radians(-90), math.radians(0)),
    Part.LineSegment(App.Vector(58.8, 160.1, 0), App.Vector(58.8, 162.1, 0)),
    Part.ArcOfCircle(Part.Circle(App.Vector(54.8, 162.1, 0), App.Vector(0, 0, 1), 4), math.radians(0), math.radians(90)),
    Part.LineSegment(App.Vector(54.8, 4.1, 0), App.Vector(-79.8, 4.1, 0)),
    Part.ArcOfCircle(Part.Circle(App.Vector(-79.8, 0.1, 0), App.Vector(0, 0, 1), 4), math.radians(90), math.radians(180)),
    Part.LineSegment(App.Vector(-83.8, 0.1, 0), App.Vector(-83.8, -1.9, 0)),
    Part.ArcOfCircle(Part.Circle(App.Vector(-79.8, -1.9, 0), App.Vector(0, 0, 1), 4), math.radians(-180), math.radians(-90)),
    Part.LineSegment(App.Vector(-79.8, -5.9, 0), App.Vector(54.8, -5.9, 0)),
    Part.ArcOfCircle(Part.Circle(App.Vector(54.8, -1.9, 0), App.Vector(0, 0, 1), 4), math.radians(-90), math.radians(0)),
    Part.LineSegment(App.Vector(58.8, -1.9, 0), App.Vector(58.8, 0.1, 0)),
    Part.ArcOfCircle(Part.Circle(App.Vector(54.8, 0.1, 0), App.Vector(0, 0, 1), 4), math.radians(0), math.radians(90)),
], False)
sketch4.addConstraint([
    Sketcher.Constraint("Tangent", 0, 2, 1, 1),
    Sketcher.Constraint("Tangent", 1, 2, 2, 1),
    Sketcher.Constraint("Tangent", 2, 2, 3, 1),
    Sketcher.Constraint("Tangent", 3, 2, 4, 1),
    Sketcher.Constraint("Tangent", 4, 2, 5, 1),
    Sketcher.Constraint("Tangent", 5, 2, 6, 1),
    Sketcher.Constraint("Tangent", 6, 2, 7, 1),
    Sketcher.Constraint("Tangent", 7, 2, 0, 1),
    Sketcher.Constraint("Tangent", 8, 2, 9, 1),
    Sketcher.Constraint("Tangent", 9, 2, 10, 1),
    Sketcher.Constraint("Tangent", 10, 2, 11, 1),
    Sketcher.Constraint("Tangent", 11, 2, 12, 1),
    Sketcher.Constraint("Tangent", 12, 2, 13, 1),
    Sketcher.Constraint("Tangent", 13, 2, 14, 1),
    Sketcher.Constraint("Tangent", 14, 2, 15, 1),
    Sketcher.Constraint("Tangent", 15, 2, 8, 1),
    Sketcher.Constraint("Horizontal", 0),
    Sketcher.Constraint("Vertical", 2),
    Sketcher.Constraint("Horizontal", 4),
    Sketcher.Constraint("Vertical", 6),
    Sketcher.Constraint("Horizontal", 8),
    Sketcher.Constraint("Vertical", 10),
    Sketcher.Constraint("Horizontal", 12),
    Sketcher.Constraint("Vertical", 14),
    Sketcher.Constraint("Equal", 1, 3),
    Sketcher.Constraint("Equal", 3, 5),
    Sketcher.Constraint("Equal", 5, 7),
    Sketcher.Constraint("Equal", 7, 9),
    Sketcher.Constraint("Equal", 9, 11),
    Sketcher.Constraint("Equal", 11, 13),
    Sketcher.Constraint("Equal", 13, 15),
    Sketcher.Constraint("Vertical", 3, 3, 9, 3),
    Sketcher.Constraint("Vertical", 7, 3, 13, 3),
    Sketcher.Constraint("Equal", 6, 10),
    Sketcher.Constraint("Radius", 1, 4.0),
    Sketcher.Constraint("DistanceY", 2, 2, 2, 1, 2.0),
    Sketcher.Constraint("DistanceX", 0, 2, 0, 1, 134.6),
    Sketcher.Constraint("DistanceY", 9, 3, 3, 3, 160.000001),
    Sketcher.Constraint("DistanceX", 1, 3, -1, 1, 79.8),
    Sketcher.Constraint("DistanceY", -1, 1, 1, 3, 162.053206),
])
pocket3 = doc.addObject("PartDesign::Pocket", "Pocket002")
body.addObject(pocket3)
pocket3.Profile = sketch4
pocket3.Length = 25

doc.recompute()
